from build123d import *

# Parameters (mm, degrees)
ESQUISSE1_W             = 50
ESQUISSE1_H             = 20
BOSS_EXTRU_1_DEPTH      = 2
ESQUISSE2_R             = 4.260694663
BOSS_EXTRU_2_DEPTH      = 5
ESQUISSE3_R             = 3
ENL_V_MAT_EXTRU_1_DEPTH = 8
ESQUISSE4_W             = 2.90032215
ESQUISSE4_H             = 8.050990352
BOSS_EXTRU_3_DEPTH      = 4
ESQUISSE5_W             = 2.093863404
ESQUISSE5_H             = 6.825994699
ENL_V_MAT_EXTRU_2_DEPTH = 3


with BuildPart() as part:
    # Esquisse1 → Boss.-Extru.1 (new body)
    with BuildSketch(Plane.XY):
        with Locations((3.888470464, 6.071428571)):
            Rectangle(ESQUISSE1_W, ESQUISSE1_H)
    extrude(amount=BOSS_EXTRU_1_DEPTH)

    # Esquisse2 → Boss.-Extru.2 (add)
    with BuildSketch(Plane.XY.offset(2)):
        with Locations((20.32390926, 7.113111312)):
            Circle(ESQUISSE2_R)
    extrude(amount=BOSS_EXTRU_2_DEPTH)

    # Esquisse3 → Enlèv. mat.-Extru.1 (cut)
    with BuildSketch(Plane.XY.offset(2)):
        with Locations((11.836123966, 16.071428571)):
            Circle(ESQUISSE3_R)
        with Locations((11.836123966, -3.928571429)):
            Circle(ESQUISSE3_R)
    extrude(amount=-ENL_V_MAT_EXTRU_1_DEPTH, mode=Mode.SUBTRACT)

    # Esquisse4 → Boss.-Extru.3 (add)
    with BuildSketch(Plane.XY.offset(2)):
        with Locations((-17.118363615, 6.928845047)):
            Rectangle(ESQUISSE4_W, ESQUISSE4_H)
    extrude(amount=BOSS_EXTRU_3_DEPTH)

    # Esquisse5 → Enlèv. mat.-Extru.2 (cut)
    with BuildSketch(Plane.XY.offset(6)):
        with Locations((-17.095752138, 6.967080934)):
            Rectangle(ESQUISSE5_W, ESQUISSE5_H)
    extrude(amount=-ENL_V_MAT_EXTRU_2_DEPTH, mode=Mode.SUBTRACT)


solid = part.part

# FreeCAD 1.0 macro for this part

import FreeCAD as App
import Part
import Sketcher
from FreeCAD import Vector


def add_polygon(sketch, points):
    """Adds a closed chain of lines whose ends are joined by coincident constraints."""
    first, n = sketch.GeometryCount, len(points)
    for a, b in zip(points, points[1:] + points[:1]):
        sketch.addGeometry(Part.LineSegment(App.Vector(*a, 0), App.Vector(*b, 0)), False)
    for i in range(n):
        sketch.addConstraint(Sketcher.Constraint("Coincident", first + i, 2, first + (i + 1) % n, 1))

doc = App.newDocument("Part")
body = doc.addObject("PartDesign::Body", "Body")

# Sketch on XY plane
sketch1 = body.newObject("Sketcher::SketchObject", "Sketch")
sketch1.AttachmentSupport = (doc.getObject("XY_Plane"), [""])
sketch1.MapMode = "FlatFace"
add_polygon(sketch1, [(-21, 16), (-21, -4), (29, -4), (29, 16)])  # lines 0-3
sketch1.addConstraint([
    Sketcher.Constraint("Vertical", 0),
    Sketcher.Constraint("Horizontal", 1),
    Sketcher.Constraint("Vertical", 2),
    Sketcher.Constraint("Horizontal", 3),
    Sketcher.Constraint("DistanceX", 1, 1, 1, 2, 50.0),
    Sketcher.Constraint("DistanceY", 0, 2, 0, 1, 20.0),
    Sketcher.Constraint("DistanceX", 0, 2, -1, 1, 21.11153),
    Sketcher.Constraint("DistanceY", 0, 2, -1, 1, 3.928571),
])
pad1 = body.newObject("PartDesign::Pad", "Pad")
pad1.Profile = sketch1
pad1.Length = 2

# Sketch on XY plane
sketch2 = body.newObject("Sketcher::SketchObject", "Sketch001")
sketch2.AttachmentSupport = (doc.getObject("XY_Plane"), [""])
sketch2.MapMode = "FlatFace"
sketch2.AttachmentOffset = App.Placement(Vector(0, 0, 2), App.Rotation())
sketch2.addGeometry(Part.Circle(Vector(20.3, 7.1, 0), Vector(0, 0, 1), 4.3), False)
sketch2.addConstraint([
    Sketcher.Constraint("Diameter", 0, 8.521389),
    Sketcher.Constraint("DistanceX", -1, 1, 0, 3, 20.323909),
    Sketcher.Constraint("DistanceY", -1, 1, 0, 3, 7.113111),
])
pad2 = body.newObject("PartDesign::Pad", "Pad001")
pad2.Profile = sketch2
pad2.Length = 5

# Sketch on XY plane
sketch3 = body.newObject("Sketcher::SketchObject", "Sketch002")
sketch3.AttachmentSupport = (doc.getObject("XY_Plane"), [""])
sketch3.MapMode = "FlatFace"
sketch3.AttachmentOffset = App.Placement(Vector(0, 0, 2), App.Rotation())
sketch3.addGeometry([
    Part.Circle(Vector(11.8, 16.1, 0), Vector(0, 0, 1), 3),
    Part.Circle(Vector(11.8, -3.9, 0), Vector(0, 0, 1), 3),
], False)
sketch3.addConstraint([
    Sketcher.Constraint("Equal", 0, 1),
    Sketcher.Constraint("Vertical", 0, 3, 1, 3),
    Sketcher.Constraint("Diameter", 0, 6.0),
    Sketcher.Constraint("DistanceY", 1, 3, 0, 3, 20.0),
    Sketcher.Constraint("DistanceY", -1, 1, 0, 3, 16.071429),
    Sketcher.Constraint("DistanceX", -1, 1, 0, 3, 11.836124),
])
pocket1 = body.newObject("PartDesign::Pocket", "Pocket")
pocket1.Profile = sketch3
pocket1.Length = 8

# Sketch on XY plane
sketch4 = body.newObject("Sketcher::SketchObject", "Sketch003")
sketch4.AttachmentSupport = (doc.getObject("XY_Plane"), [""])
sketch4.MapMode = "FlatFace"
sketch4.AttachmentOffset = App.Placement(Vector(0, 0, 2), App.Rotation())
add_polygon(sketch4, [(-18.6, 11), (-18.6, 2.9), (-15.7, 2.9), (-15.7, 11)])  # lines 0-3
sketch4.addConstraint([
    Sketcher.Constraint("Vertical", 0),
    Sketcher.Constraint("Horizontal", 1),
    Sketcher.Constraint("Vertical", 2),
    Sketcher.Constraint("Horizontal", 3),
    Sketcher.Constraint("DistanceY", 0, 2, 0, 1, 8.05099),
    Sketcher.Constraint("DistanceX", 1, 1, 1, 2, 2.900322),
    Sketcher.Constraint("DistanceY", -1, 1, 0, 2, 2.90335),
    Sketcher.Constraint("DistanceX", 0, 2, -1, 1, 18.568525),
])
pad3 = body.newObject("PartDesign::Pad", "Pad002")
pad3.Profile = sketch4
pad3.Length = 4

# Sketch on XY plane
sketch5 = body.newObject("Sketcher::SketchObject", "Sketch004")
sketch5.AttachmentSupport = (doc.getObject("XY_Plane"), [""])
sketch5.MapMode = "FlatFace"
sketch5.AttachmentOffset = App.Placement(Vector(0, 0, 6), App.Rotation())
add_polygon(sketch5, [(-18.1, 10.4), (-18.1, 3.6), (-16, 3.6), (-16, 10.4)])  # lines 0-3
sketch5.addConstraint([
    Sketcher.Constraint("Vertical", 0),
    Sketcher.Constraint("Horizontal", 1),
    Sketcher.Constraint("Vertical", 2),
    Sketcher.Constraint("Horizontal", 3),
    Sketcher.Constraint("DistanceX", 1, 1, 1, 2, 2.093863),
    Sketcher.Constraint("DistanceY", 0, 2, 0, 1, 6.825995),
    Sketcher.Constraint("DistanceX", 1, 2, -1, 1, 16.04882),
    Sketcher.Constraint("DistanceY", -1, 1, 2, 2, 10.380078),
])
pocket2 = body.newObject("PartDesign::Pocket", "Pocket001")
pocket2.Profile = sketch5
pocket2.Length = 3

doc.recompute()
